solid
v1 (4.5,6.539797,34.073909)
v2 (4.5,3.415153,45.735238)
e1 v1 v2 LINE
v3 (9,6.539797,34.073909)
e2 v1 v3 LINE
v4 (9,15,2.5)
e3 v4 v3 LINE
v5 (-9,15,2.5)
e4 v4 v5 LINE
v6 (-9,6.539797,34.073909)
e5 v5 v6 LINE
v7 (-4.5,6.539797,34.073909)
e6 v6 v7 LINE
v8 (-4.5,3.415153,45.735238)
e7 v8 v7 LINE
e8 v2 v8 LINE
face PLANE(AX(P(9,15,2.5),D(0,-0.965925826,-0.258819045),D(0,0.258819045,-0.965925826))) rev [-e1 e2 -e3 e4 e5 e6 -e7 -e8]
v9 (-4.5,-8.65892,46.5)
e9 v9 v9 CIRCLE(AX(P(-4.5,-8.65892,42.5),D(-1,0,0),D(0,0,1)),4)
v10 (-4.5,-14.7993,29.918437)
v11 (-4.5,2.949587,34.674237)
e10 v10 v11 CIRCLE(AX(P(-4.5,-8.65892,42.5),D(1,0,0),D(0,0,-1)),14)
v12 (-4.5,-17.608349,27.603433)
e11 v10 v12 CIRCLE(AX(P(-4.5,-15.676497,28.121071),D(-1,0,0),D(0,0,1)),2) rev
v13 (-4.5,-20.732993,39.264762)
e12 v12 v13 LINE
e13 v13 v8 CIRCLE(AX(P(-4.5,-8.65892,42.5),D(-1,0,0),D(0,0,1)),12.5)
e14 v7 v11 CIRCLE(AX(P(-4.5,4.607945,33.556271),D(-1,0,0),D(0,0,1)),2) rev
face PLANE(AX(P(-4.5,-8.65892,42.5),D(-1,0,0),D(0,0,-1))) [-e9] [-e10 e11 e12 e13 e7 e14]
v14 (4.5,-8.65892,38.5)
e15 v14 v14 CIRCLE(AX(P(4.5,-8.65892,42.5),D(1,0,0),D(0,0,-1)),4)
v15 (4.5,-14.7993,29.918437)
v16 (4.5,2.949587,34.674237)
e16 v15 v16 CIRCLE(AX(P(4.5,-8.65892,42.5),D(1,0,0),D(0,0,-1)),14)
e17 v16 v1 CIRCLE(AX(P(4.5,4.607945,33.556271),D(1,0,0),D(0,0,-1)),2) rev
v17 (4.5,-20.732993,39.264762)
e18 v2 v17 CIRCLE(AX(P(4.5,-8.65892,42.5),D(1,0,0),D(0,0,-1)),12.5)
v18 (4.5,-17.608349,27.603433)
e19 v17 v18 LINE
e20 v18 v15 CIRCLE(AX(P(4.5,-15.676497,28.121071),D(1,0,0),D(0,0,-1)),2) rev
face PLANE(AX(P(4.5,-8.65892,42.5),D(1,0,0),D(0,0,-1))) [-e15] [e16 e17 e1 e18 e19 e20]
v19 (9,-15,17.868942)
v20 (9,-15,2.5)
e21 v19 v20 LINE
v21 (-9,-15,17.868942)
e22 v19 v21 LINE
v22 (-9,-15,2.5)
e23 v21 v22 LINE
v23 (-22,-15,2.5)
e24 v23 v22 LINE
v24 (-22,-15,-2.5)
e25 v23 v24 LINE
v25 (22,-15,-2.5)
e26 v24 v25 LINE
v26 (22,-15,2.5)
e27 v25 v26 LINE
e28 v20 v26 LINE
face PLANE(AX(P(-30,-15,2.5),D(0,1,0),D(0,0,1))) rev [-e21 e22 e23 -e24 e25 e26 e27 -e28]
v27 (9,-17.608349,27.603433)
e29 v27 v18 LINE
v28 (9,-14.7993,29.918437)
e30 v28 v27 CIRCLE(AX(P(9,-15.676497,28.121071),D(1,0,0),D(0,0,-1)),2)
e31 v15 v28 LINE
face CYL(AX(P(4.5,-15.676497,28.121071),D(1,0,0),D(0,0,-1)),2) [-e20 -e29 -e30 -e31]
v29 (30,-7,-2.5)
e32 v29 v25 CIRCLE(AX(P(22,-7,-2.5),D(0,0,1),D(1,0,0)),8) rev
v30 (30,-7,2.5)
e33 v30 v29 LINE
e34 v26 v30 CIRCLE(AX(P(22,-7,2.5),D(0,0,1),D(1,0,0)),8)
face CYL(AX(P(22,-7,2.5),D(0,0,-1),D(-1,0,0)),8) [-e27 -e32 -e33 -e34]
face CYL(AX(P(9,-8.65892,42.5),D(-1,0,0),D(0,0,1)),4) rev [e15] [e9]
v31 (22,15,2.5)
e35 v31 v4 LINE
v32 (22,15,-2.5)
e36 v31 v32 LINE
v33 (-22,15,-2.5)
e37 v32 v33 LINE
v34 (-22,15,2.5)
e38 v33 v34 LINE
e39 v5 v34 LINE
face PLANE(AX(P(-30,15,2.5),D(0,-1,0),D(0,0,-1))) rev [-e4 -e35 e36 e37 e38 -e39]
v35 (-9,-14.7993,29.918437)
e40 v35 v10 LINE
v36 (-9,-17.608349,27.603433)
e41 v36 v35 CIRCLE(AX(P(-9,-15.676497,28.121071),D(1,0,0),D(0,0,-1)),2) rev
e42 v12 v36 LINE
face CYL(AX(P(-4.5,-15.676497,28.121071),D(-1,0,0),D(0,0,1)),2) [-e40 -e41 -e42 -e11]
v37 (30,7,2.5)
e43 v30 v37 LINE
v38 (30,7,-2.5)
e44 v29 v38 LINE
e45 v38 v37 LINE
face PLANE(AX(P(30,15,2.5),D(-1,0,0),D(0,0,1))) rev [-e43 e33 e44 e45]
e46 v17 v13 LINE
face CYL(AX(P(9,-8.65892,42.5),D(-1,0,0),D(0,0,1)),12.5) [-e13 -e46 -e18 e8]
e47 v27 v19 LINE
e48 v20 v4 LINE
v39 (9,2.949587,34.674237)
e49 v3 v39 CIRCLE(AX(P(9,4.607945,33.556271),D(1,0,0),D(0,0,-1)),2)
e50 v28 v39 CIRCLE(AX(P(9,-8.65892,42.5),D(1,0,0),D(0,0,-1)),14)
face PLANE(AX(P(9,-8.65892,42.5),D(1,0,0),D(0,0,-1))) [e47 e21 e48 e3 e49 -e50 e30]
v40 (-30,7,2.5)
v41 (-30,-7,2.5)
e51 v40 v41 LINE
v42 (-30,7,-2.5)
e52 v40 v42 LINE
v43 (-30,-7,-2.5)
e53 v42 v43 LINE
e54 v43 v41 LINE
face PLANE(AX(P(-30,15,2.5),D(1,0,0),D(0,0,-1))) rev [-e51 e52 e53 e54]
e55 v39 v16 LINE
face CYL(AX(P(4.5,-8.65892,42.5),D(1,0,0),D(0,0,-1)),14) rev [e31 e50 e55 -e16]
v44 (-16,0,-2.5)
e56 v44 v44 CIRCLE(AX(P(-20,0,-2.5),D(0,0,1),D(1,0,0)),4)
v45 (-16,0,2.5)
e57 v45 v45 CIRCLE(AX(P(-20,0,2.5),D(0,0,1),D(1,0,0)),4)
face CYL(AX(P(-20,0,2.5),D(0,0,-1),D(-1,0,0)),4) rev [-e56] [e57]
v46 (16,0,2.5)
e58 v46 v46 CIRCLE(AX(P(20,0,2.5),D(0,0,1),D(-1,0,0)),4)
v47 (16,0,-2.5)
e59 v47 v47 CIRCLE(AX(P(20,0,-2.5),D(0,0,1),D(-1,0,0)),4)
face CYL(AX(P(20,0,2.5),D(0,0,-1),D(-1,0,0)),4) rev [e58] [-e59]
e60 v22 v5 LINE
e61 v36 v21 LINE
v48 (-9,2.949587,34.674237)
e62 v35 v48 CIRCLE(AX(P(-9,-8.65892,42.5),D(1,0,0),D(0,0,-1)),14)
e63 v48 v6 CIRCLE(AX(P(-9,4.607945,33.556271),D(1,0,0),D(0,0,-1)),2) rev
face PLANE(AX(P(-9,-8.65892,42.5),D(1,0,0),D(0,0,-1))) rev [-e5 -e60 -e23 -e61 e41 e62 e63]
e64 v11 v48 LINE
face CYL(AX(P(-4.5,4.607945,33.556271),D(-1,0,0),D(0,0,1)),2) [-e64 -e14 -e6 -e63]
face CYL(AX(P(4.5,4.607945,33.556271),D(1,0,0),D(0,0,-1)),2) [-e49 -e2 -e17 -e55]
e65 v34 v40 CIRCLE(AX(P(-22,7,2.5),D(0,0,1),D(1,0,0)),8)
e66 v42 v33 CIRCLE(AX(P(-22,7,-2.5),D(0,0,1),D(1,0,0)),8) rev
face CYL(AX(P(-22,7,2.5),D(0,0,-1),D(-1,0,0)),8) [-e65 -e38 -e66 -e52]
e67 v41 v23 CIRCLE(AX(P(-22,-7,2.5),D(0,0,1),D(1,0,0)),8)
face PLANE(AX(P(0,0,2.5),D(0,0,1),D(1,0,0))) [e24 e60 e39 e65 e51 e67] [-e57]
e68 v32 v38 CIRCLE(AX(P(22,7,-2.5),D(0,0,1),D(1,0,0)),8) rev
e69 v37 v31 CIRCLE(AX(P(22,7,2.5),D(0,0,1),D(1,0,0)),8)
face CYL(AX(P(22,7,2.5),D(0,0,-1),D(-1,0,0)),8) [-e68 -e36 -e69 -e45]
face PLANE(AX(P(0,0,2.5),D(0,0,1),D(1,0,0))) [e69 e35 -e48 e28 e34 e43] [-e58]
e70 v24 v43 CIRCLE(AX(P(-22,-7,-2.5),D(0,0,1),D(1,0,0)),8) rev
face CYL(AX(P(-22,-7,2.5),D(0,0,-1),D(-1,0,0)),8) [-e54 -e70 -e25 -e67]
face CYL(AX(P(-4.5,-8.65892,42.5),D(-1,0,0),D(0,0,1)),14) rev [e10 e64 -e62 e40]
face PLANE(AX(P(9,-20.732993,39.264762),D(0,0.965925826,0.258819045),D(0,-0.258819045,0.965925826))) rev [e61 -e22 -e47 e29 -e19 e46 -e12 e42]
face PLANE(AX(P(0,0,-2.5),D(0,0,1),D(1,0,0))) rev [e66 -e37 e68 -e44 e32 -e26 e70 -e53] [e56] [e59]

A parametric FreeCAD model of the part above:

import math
import FreeCAD as App
import Part
import Sketcher
Q = App.Units.Quantity


def edges_at(feature, points):
    """Names of the edges that pass closest to the given points."""
    edges = feature.Shape.Edges
    near = lambda p: min(range(len(edges)), key=lambda i: edges[i].distToShape(Part.Vertex(*p))[0])
    return sorted({f"Edge{near(p) + 1}" for p in points})


def add_polygon(sketch, points):
    """Adds a closed chain of lines whose ends are joined by coincident constraints."""
    first, n = sketch.GeometryCount, len(points)
    for a, b in zip(points, points[1:] + points[:1]):
        sketch.addGeometry(Part.LineSegment(App.Vector(*a, 0), App.Vector(*b, 0)), False)
    for i in range(n):
        sketch.addConstraint(Sketcher.Constraint("Coincident", first + i, 2, first + (i + 1) % n, 1))

doc = App.newDocument("Part")
body = doc.addObject("PartDesign::Body", "Body")

# Sketch on XY plane
sketch1 = doc.addObject("Sketcher::SketchObject", "Sketch")
body.addObject(sketch1)
sketch1.AttachmentSupport = (doc.XY_Plane, [""])
sketch1.MapMode = "FlatFace"
add_polygon(sketch1, [(-30, 15), (-30, -15), (30, -15), (30, 15)])  # lines 0-3
sketch1.addGeometry(Part.Circle(App.Vector(-20, 0, 0), App.Vector(0, 0, 1), 4), False)  # 4
sketch1.addGeometry(Part.Circle(App.Vector(20, 0, 0), App.Vector(0, 0, 1), 4), False)  # 5
sketch1.addConstraint([
    Sketcher.Constraint("Vertical", 0),
    Sketcher.Constraint("Horizontal", 1),
    Sketcher.Constraint("Vertical", 2),
    Sketcher.Constraint("Horizontal", 3),
    Sketcher.Constraint("Equal", 4, 5),
    Sketcher.Constraint("Symmetric", 4, 3, 5, 3, -1, 1),
    Sketcher.Constraint("Symmetric", 0, 2, 2, 2, -1, 1),
    Sketcher.Constraint("PointOnObject", 4, 3, -1),
    Sketcher.Constraint("Diameter", 4, Q("8 mm")),
    Sketcher.Constraint("DistanceX", 1, 1, 1, 2, Q("60 mm")),
    Sketcher.Constraint("DistanceY", 0, 2, 0, 1, Q("30 mm")),
    Sketcher.Constraint("DistanceX", 4, 3, -1, 1, Q("20 mm")),
])
pad1 = doc.addObject("PartDesign::Pad", "Pad")
body.addObject(pad1)
pad1.Profile = sketch1
pad1.Length = 5
pad1.Midplane = True
doc.recompute()

fillet = doc.addObject("PartDesign::Fillet", "Fillet")
body.addObject(fillet)
fillet.Base = (pad1, edges_at(pad1, [
    (30, -15, 0),
    (-30, -15, 0),
    (-30, 15, 0),
    (30, 15, 0),
]))
fillet.Radius = 8

# Sketch on YZ plane
sketch2 = doc.addObject("Sketcher::SketchObject", "Sketch001")
body.addObject(sketch2)
sketch2.AttachmentSupport = (doc.YZ_Plane, [""])
sketch2.MapMode = "FlatFace"
sketch2.addGeometry([
    Part.LineSegment(App.Vector(15, 2.5, 0), App.Vector(3.4, 45.7, 0)),  # 0
    Part.ArcOfCircle(Part.Circle(App.Vector(-8.7, 42.5, 0), App.Vector(0, 0, 1), 12.5), math.radians(15), math.radians(195)),  # 1
    Part.LineSegment(App.Vector(-20.7, 39.3, 0), App.Vector(-15, 17.9, 0)),  # 2
    Part.LineSegment(App.Vector(-15, 17.9, 0), App.Vector(-15, 2.5, 0)),  # 3
    Part.LineSegment(App.Vector(-15, 2.5, 0), App.Vector(15, 2.5, 0)),  # 4
    Part.Circle(App.Vector(-8.7, 42.5, 0), App.Vector(0, 0, 1), 4),  # 5
], False)
sketch2.addConstraint([
    Sketcher.Constraint("Tangent", 0, 2, 1, 1),
    Sketcher.Constraint("Tangent", 1, 2, 2, 1),
    Sketcher.Constraint("Coincident", 2, 2, 3, 1),
    Sketcher.Constraint("Coincident", 3, 2, 4, 1),
    Sketcher.Constraint("Coincident", 4, 2, 0, 1),
    Sketcher.Constraint("Vertical", 3),
    Sketcher.Constraint("Horizontal", 4),
    Sketcher.Constraint("Coincident", 5, 3, 1, 3),
    Sketcher.Constraint("Parallel", 0, 2),
    Sketcher.Constraint("Diameter", 5, Q("8 mm")),
    Sketcher.Constraint("Radius", 1, Q("12.5 mm")),
    Sketcher.Constraint("DistanceX", 4, 1, 4, 2, Q("30 mm")),
    Sketcher.Constraint("Angle", 0, Q("105 deg")),
    Sketcher.Constraint("DistanceX", 2, 2, -1, 1, Q("15 mm")),
    Sketcher.Constraint("DistanceY", 3, 2, 1, 3, Q("40 mm")),
    Sketcher.Constraint("DistanceY", -1, 1, 1, 3, Q("42.5 mm")),
])
pad2 = doc.addObject("PartDesign::Pad", "Pad001")
body.addObject(pad2)
pad2.Profile = sketch2
pad2.Length = 18
pad2.Midplane = True

# Sketch on YZ plane
sketch3 = doc.addObject("Sketcher::SketchObject", "Sketch002")
body.addObject(sketch3)
sketch3.AttachmentSupport = (doc.YZ_Plane, [""])
sketch3.MapMode = "FlatFace"
sketch3.AttachmentOffset = App.Placement(App.Vector(0, 0, 9), App.Rotation())
sketch3.addGeometry(Part.Circle(App.Vector(-9, 42, 0), App.Vector(0, 0, 1), 14), False)
sketch3.addConstraint([
    Sketcher.Constraint("Diameter", 0, Q("28 mm")),
    Sketcher.Constraint("DistanceY", -1, 1, 0, 3, Q("42.5 mm")),
    Sketcher.Constraint("DistanceX", 0, 3, -1, 1, Q("8.65892 mm")),
])
pocket1 = doc.addObject("PartDesign::Pocket", "Pocket")
body.addObject(pocket1)
pocket1.Profile = sketch3
pocket1.Length = 4.5
doc.recompute()

fillet2 = doc.addObject("PartDesign::Fillet", "Fillet001")
body.addObject(fillet2)
fillet2.Base = (pocket1, edges_at(pocket1, [(6.75, -19.101, 33.175), (6.75, 5.047, 39.645)]))
fillet2.Radius = 2
doc.recompute()

mirrored = doc.addObject("PartDesign::Mirrored", "Mirrored")
body.addObject(mirrored)
mirrored.Originals = [pocket1]
mirrored.MirrorPlane = (doc.YZ_Plane, [""])
body.Tip = mirrored
doc.recompute()

fillet3 = doc.addObject("PartDesign::Fillet", "Fillet002")
body.addObject(fillet3)
fillet3.Base = (mirrored, edges_at(mirrored, [(-6.75, -19.101, 33.175), (-6.75, 5.047, 39.645)]))
fillet3.Radius = 2

doc.recompute()
